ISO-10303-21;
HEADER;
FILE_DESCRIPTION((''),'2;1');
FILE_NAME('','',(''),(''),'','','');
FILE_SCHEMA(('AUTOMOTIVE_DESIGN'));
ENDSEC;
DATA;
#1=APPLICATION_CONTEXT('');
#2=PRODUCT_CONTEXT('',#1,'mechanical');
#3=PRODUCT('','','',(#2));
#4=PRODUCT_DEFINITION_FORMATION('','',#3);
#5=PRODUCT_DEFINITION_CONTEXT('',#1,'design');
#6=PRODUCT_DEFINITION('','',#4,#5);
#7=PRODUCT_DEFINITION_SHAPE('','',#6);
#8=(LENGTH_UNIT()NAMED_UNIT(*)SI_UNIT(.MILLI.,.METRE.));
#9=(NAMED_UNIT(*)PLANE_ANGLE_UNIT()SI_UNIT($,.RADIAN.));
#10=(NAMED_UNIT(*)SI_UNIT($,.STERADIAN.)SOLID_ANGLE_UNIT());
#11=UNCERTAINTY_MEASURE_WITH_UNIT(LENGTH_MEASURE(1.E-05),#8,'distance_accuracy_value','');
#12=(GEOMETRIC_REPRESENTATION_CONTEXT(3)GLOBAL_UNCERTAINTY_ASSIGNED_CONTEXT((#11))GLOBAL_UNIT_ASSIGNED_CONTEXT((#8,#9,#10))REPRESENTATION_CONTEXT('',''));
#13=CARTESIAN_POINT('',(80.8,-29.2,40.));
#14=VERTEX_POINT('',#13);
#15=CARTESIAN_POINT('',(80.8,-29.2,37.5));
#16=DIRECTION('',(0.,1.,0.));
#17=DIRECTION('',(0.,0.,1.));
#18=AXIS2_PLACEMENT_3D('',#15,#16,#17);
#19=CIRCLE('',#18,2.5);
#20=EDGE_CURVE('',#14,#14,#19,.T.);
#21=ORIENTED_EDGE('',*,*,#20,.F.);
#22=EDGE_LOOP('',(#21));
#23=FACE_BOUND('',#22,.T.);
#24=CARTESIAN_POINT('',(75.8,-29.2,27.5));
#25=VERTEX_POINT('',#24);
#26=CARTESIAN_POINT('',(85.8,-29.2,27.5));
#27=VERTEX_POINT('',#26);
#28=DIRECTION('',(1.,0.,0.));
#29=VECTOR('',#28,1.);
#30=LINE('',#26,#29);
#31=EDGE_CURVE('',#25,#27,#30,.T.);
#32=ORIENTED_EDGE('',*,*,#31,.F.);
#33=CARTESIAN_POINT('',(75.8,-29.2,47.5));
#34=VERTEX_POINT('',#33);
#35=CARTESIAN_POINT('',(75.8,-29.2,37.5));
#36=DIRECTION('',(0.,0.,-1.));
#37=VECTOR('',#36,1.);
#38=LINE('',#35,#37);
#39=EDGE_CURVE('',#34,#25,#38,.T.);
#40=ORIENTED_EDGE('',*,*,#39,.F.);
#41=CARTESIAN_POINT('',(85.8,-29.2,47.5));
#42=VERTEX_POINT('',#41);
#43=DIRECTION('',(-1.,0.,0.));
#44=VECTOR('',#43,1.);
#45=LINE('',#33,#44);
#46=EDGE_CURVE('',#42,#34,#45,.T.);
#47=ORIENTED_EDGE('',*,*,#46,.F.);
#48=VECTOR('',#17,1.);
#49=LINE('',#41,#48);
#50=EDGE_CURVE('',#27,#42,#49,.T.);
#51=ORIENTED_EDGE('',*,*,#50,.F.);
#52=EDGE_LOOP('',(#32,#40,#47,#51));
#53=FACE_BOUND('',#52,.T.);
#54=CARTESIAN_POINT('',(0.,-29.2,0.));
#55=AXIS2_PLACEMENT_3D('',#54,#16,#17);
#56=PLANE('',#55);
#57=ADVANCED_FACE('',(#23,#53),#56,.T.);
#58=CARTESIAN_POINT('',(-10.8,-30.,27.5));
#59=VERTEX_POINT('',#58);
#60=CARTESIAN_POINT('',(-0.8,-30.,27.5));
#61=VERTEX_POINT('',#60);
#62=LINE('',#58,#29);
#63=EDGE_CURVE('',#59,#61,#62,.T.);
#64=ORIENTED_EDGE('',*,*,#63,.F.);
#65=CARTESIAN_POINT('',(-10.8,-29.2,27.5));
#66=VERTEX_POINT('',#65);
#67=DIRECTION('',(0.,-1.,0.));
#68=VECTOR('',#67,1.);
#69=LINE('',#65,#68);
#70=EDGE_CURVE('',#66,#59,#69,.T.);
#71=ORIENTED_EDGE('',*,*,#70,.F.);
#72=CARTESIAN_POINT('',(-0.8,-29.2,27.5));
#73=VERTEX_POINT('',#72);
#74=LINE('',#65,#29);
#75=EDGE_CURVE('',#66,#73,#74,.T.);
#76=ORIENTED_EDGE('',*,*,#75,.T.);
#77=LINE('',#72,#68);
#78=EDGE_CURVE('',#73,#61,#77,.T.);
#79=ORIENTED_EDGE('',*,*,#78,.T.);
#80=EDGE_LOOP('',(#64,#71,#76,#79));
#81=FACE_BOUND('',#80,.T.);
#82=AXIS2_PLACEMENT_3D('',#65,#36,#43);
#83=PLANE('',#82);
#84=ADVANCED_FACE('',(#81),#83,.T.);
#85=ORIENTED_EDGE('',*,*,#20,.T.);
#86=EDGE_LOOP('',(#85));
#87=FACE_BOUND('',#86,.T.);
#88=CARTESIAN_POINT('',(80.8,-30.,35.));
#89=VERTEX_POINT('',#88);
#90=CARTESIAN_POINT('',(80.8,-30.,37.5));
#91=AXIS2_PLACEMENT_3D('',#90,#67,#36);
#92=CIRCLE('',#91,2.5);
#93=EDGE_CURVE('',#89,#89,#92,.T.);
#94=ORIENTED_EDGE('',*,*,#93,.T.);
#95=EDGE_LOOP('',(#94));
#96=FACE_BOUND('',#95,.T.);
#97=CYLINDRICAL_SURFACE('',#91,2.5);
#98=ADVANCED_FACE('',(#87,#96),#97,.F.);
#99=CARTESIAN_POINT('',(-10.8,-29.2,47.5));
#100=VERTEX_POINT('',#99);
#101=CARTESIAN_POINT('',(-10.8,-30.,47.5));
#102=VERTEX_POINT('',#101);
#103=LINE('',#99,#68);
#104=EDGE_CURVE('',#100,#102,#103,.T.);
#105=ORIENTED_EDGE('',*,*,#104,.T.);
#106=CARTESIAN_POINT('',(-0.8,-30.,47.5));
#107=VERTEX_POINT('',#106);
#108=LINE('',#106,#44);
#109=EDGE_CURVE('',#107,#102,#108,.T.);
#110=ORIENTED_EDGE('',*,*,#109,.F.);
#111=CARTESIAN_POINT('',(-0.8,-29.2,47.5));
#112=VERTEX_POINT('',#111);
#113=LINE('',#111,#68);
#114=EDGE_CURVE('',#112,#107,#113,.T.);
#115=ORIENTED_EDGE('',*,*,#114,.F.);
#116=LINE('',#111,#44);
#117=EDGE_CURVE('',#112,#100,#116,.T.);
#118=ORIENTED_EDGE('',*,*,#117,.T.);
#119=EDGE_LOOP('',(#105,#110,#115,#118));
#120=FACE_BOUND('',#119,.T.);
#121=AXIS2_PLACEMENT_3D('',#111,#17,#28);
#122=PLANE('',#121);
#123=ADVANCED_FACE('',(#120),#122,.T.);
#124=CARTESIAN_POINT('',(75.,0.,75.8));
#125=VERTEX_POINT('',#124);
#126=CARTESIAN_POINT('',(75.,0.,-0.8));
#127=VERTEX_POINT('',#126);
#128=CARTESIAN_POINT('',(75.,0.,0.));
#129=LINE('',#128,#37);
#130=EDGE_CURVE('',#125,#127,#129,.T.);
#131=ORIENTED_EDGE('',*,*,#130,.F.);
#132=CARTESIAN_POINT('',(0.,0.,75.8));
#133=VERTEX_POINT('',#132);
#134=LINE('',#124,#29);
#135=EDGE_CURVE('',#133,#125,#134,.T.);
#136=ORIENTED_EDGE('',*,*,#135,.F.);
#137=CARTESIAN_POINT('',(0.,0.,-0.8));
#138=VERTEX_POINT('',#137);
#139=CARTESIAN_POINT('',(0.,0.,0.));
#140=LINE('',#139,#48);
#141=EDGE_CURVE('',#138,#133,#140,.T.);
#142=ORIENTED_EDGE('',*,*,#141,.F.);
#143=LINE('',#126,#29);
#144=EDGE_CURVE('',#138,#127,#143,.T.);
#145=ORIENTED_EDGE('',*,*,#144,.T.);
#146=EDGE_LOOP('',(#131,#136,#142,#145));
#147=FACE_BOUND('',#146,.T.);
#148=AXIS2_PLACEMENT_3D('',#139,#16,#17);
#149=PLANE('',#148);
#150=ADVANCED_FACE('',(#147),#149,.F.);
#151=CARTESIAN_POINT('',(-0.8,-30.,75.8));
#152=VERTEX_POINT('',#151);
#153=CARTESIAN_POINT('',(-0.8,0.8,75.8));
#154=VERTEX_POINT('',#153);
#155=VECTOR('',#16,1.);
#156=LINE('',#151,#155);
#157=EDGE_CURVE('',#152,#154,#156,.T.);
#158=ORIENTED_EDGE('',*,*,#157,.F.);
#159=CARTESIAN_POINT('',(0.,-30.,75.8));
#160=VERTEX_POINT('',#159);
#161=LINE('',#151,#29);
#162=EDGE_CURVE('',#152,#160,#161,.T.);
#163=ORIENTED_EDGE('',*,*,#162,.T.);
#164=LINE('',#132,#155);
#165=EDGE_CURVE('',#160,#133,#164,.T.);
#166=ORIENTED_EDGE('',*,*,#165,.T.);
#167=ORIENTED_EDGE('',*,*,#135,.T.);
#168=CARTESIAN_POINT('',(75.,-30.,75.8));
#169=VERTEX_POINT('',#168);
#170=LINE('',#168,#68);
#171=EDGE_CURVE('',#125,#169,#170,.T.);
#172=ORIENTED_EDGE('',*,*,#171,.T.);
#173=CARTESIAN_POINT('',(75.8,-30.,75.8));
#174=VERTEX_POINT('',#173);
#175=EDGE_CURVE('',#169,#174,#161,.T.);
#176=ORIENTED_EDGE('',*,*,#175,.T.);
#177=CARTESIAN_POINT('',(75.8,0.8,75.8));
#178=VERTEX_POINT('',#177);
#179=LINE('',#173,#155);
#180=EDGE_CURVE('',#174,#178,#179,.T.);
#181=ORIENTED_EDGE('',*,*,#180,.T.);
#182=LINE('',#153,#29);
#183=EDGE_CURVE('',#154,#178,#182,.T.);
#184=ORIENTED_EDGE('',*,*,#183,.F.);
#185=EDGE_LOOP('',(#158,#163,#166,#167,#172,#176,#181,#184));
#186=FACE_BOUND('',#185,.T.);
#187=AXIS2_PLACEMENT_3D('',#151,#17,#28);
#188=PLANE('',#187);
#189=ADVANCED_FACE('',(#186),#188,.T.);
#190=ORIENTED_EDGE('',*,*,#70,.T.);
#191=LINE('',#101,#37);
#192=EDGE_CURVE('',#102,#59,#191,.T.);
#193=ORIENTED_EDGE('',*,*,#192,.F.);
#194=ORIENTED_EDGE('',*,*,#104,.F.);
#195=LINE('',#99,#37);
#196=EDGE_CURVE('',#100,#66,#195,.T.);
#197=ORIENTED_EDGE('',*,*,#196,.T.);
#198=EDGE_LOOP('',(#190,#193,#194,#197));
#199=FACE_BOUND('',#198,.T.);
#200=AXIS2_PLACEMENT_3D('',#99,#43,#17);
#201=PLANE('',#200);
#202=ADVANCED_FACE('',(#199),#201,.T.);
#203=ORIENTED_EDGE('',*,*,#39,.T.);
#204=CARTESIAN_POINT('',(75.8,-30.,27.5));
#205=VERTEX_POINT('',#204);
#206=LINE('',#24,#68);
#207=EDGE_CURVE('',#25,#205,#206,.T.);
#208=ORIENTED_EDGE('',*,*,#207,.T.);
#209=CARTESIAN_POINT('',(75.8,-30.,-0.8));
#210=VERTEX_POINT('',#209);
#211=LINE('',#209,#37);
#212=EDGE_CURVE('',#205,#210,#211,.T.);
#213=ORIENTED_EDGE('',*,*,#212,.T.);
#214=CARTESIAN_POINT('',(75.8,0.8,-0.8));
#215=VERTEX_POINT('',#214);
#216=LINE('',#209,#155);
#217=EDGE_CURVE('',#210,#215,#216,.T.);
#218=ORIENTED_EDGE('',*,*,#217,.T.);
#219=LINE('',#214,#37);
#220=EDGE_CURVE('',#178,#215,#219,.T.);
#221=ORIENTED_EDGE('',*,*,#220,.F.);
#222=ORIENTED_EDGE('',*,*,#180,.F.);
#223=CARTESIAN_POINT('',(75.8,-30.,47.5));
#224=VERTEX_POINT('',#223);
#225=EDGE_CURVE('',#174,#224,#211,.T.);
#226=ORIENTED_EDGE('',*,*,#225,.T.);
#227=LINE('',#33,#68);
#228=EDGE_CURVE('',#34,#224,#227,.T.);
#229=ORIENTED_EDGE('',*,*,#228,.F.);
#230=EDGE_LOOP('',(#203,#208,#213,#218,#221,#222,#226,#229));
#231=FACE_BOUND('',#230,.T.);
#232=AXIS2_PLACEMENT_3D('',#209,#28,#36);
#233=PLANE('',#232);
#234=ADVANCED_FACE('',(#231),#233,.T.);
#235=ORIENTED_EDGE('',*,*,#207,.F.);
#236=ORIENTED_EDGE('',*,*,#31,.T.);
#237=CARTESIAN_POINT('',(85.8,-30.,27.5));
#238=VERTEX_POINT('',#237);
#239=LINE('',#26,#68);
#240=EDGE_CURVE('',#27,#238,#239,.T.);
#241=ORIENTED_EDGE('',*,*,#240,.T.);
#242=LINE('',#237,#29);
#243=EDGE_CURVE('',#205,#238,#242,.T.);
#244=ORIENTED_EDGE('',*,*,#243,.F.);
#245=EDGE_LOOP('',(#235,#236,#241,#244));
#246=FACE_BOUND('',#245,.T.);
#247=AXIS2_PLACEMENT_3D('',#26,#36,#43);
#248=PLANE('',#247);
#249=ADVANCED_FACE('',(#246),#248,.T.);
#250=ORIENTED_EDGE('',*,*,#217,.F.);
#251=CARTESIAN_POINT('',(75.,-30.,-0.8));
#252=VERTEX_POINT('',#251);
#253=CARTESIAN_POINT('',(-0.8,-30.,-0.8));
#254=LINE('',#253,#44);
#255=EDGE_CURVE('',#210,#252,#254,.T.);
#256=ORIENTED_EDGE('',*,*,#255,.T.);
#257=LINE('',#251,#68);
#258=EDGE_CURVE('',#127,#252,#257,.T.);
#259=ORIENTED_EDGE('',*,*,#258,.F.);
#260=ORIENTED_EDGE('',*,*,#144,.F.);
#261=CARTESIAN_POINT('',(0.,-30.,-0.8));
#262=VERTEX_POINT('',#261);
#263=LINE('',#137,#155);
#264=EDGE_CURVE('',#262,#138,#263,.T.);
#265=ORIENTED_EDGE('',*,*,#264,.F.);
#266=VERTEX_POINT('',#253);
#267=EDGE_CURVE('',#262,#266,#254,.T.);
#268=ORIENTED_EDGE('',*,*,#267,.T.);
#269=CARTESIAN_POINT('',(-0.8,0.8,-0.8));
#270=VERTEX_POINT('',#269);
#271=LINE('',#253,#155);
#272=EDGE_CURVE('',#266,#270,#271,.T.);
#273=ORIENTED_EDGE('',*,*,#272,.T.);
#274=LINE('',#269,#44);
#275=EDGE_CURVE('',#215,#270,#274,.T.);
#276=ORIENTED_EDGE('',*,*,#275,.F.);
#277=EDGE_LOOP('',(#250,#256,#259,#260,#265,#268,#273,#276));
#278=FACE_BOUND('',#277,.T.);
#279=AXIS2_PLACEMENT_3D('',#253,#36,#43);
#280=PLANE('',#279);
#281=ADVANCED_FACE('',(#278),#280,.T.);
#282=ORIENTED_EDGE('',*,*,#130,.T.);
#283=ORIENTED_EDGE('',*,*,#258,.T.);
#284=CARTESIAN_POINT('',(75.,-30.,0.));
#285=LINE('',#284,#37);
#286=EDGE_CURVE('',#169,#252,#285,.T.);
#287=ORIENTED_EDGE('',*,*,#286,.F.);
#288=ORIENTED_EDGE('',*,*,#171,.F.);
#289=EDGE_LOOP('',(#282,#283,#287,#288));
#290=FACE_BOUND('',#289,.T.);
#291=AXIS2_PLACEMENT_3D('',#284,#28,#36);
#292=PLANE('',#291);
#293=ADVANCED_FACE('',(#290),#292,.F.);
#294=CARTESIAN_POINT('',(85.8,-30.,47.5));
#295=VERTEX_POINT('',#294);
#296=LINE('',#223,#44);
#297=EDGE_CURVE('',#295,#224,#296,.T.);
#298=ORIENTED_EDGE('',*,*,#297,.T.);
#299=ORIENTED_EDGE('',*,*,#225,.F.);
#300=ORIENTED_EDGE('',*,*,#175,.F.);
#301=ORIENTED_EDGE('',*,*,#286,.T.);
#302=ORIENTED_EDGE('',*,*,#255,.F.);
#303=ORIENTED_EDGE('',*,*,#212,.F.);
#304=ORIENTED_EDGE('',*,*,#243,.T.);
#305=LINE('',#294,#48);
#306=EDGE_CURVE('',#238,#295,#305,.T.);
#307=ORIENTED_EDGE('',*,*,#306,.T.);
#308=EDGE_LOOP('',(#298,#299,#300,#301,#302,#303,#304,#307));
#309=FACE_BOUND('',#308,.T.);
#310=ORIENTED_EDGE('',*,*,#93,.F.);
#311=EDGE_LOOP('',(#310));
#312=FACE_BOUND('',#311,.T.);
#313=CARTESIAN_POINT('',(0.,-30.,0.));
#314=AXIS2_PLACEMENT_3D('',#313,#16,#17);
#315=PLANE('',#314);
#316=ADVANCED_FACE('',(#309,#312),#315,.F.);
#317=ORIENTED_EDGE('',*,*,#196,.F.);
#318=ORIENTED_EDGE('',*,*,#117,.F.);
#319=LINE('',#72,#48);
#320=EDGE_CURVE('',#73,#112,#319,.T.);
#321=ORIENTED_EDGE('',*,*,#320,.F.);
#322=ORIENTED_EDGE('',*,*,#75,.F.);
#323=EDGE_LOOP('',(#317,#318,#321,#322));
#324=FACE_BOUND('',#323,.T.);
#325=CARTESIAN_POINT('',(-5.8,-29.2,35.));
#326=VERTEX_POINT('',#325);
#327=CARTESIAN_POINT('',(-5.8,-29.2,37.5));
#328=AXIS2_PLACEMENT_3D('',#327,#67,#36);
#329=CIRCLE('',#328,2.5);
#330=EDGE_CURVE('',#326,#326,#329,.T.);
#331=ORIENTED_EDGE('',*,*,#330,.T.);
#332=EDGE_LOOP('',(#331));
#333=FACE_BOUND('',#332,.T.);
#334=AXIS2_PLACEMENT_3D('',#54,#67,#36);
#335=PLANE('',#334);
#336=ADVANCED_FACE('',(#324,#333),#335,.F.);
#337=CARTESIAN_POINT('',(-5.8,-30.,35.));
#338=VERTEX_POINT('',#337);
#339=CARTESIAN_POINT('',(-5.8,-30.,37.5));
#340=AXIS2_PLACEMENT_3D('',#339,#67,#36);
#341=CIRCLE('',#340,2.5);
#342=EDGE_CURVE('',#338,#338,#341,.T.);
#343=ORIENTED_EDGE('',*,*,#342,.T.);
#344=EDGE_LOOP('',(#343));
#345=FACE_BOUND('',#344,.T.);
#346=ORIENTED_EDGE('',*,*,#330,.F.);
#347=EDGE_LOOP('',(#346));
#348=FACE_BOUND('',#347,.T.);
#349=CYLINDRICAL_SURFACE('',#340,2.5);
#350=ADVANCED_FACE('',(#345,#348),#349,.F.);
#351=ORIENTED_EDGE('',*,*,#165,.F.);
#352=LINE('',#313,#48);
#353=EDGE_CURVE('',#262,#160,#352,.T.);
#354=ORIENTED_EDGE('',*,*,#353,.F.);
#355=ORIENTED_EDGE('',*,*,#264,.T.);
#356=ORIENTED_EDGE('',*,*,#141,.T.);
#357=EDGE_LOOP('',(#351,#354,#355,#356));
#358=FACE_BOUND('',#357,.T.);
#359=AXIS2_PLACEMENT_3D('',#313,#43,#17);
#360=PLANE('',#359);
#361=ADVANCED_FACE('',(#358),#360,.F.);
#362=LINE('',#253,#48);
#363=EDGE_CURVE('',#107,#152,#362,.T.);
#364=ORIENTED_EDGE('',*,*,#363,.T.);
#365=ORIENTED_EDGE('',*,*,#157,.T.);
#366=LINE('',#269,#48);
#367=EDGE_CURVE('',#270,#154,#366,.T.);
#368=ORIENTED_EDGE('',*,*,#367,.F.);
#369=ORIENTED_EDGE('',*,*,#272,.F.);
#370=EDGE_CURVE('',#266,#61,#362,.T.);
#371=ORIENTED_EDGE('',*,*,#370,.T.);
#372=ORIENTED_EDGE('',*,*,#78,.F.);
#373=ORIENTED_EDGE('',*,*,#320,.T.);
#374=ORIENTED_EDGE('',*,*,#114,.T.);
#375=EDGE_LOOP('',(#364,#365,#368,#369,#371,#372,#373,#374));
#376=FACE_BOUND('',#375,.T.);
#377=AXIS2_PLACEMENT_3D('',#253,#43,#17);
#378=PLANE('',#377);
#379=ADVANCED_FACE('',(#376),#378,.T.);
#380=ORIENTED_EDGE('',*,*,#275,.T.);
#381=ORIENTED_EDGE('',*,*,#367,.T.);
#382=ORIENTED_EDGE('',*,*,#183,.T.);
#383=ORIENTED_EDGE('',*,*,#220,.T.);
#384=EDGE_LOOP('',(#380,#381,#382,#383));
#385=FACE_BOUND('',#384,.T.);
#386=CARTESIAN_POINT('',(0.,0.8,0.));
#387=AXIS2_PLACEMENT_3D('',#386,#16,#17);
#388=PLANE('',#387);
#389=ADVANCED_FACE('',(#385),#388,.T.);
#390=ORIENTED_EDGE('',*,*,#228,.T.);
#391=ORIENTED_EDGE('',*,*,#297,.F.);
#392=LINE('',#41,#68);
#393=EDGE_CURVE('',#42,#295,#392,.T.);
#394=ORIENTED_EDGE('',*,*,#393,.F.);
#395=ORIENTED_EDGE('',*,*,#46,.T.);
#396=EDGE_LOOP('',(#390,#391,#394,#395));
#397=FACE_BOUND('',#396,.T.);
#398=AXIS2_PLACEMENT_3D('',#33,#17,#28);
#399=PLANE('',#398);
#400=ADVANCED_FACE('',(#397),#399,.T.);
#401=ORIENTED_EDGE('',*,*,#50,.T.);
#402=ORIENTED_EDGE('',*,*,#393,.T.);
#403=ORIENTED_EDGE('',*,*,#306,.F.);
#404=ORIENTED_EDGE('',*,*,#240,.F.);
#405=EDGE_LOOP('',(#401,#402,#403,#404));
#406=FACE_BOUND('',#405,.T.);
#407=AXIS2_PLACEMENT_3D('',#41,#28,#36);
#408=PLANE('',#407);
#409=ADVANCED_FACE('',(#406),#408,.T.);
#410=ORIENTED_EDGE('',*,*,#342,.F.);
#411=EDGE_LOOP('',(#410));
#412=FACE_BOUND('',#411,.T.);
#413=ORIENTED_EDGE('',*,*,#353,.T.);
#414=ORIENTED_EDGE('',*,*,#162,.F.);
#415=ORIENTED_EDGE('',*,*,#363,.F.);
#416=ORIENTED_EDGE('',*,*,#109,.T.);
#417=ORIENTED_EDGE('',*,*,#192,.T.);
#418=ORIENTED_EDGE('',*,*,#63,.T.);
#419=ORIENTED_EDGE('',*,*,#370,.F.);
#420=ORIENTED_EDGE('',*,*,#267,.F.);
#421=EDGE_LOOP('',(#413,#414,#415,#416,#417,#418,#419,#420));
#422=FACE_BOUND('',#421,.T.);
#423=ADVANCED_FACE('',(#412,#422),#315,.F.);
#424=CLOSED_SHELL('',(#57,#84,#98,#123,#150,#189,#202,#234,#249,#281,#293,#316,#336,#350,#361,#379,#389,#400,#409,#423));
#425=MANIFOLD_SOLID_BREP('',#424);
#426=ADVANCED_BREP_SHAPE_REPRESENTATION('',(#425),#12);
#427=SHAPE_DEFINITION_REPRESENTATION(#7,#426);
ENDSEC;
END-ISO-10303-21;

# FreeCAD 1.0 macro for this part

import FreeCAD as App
import Part
import Sketcher


def add_polygon(sketch, points):
    """Adds a closed chain of lines whose ends are joined by coincident constraints."""
    first, n = sketch.GeometryCount, len(points)
    for a, b in zip(points, points[1:] + points[:1]):
        sketch.addGeometry(Part.LineSegment(App.Vector(*a, 0), App.Vector(*b, 0)), False)
    for i in range(n):
        sketch.addConstraint(Sketcher.Constraint("Coincident", first + i, 2, first + (i + 1) % n, 1))

doc = App.newDocument("Part")
body = doc.addObject("PartDesign::Body", "Body")

sketch1 = body.newObject("Sketcher::SketchObject", "Sketch")
sketch1.AttachmentSupport = (doc.getObject("XZ_Plane"), [""])
sketch1.MapMode = "FlatFace"
add_polygon(sketch1, [(0, 0), (0, 75), (75, 75), (75, 0)])
sketch1.addConstraint(Sketcher.Constraint("Vertical", 0))
sketch1.addConstraint(Sketcher.Constraint("Horizontal", 1))
sketch1.addConstraint(Sketcher.Constraint("Vertical", 2))
sketch1.addConstraint(Sketcher.Constraint("Horizontal", 3))
sketch1.addConstraint(Sketcher.Constraint("Coincident", 3, 2, -1, 1))
sketch1.addConstraint(Sketcher.Constraint("Equal", 3, 0))
sketch1.addConstraint(Sketcher.Constraint("DistanceX", 1, 1, 1, 2, 75.0))
pad1 = body.newObject("PartDesign::Pad", "Pad")
pad1.Profile = sketch1
pad1.Length = 0.8
pad1.Reversed = True

sketch2 = body.newObject("Sketcher::SketchObject", "Sketch001")
sketch2.AttachmentSupport = (doc.getObject("XZ_Plane"), [""])
sketch2.MapMode = "FlatFace"
sketch2.AttachmentOffset = App.Placement(App.Vector(0, 0, -0.8), App.Rotation())
add_polygon(sketch2, [(-0.8, -0.8), (-0.8, 75.8), (75.8, 75.8), (75.8, -0.8)])
add_polygon(sketch2, [(75, 75), (0, 75), (0, 0), (75, 0)])
sketch2.addConstraint(Sketcher.Constraint("Vertical", 0))
sketch2.addConstraint(Sketcher.Constraint("Horizontal", 1))
sketch2.addConstraint(Sketcher.Constraint("Vertical", 2))
sketch2.addConstraint(Sketcher.Constraint("Horizontal", 3))
sketch2.addConstraint(Sketcher.Constraint("Horizontal", 4))
sketch2.addConstraint(Sketcher.Constraint("Vertical", 5))
sketch2.addConstraint(Sketcher.Constraint("Horizontal", 6))
sketch2.addConstraint(Sketcher.Constraint("Vertical", 7))
sketch2.addConstraint(Sketcher.Constraint("Coincident", 5, 2, -1, 1))
sketch2.addConstraint(Sketcher.Constraint("Equal", 3, 0))
sketch2.addConstraint(Sketcher.Constraint("Equal", 6, 5))
sketch2.addConstraint(Sketcher.Constraint("DistanceX", 4, 2, 4, 1, 75.0))
sketch2.addConstraint(Sketcher.Constraint("DistanceX", 1, 1, 1, 2, 76.6))
sketch2.addConstraint(Sketcher.Constraint("DistanceX", 0, 2, -1, 1, 0.8))
sketch2.addConstraint(Sketcher.Constraint("DistanceY", -1, 1, 0, 2, 75.8))
pad2 = body.newObject("PartDesign::Pad", "Pad001")
pad2.Profile = sketch2
pad2.Length = 30.8

sketch3 = body.newObject("Sketcher::SketchObject", "Sketch002")
sketch3.AttachmentSupport = (doc.getObject("XZ_Plane"), [""])
sketch3.MapMode = "FlatFace"
sketch3.AttachmentOffset = App.Placement(App.Vector(0, 0, 30), App.Rotation())
add_polygon(sketch3, [(-0.8, 47.5), (-10.8, 47.5), (-10.8, 27.5), (-0.8, 27.5)])
add_polygon(sketch3, [(75.8, 47.5), (75.8, 27.5), (85.8, 27.5), (85.8, 47.5)])
sketch3.addConstraint(Sketcher.Constraint("Horizontal", 0))
sketch3.addConstraint(Sketcher.Constraint("Vertical", 1))
sketch3.addConstraint(Sketcher.Constraint("Horizontal", 2))
sketch3.addConstraint(Sketcher.Constraint("Vertical", 3))
sketch3.addConstraint(Sketcher.Constraint("Vertical", 4))
sketch3.addConstraint(Sketcher.Constraint("Horizontal", 5))
sketch3.addConstraint(Sketcher.Constraint("Vertical", 6))
sketch3.addConstraint(Sketcher.Constraint("Horizontal", 7))
sketch3.addConstraint(Sketcher.Constraint("Horizontal", 2, 2, 4, 2))
sketch3.addConstraint(Sketcher.Constraint("Horizontal", 3, 2, 6, 2))
sketch3.addConstraint(Sketcher.Constraint("Equal", 2, 5))
sketch3.addConstraint(Sketcher.Constraint("DistanceX", 0, 2, 0, 1, 10.0))
sketch3.addConstraint(Sketcher.Constraint("DistanceY", 1, 2, 1, 1, 20.0))
sketch3.addConstraint(Sketcher.Constraint("DistanceX", 0, 2, -1, 1, 10.8))
sketch3.addConstraint(Sketcher.Constraint("DistanceY", -1, 1, 0, 2, 47.5))
sketch3.addConstraint(Sketcher.Constraint("DistanceX", -1, 1, 4, 2, 75.8))
pad3 = body.newObject("PartDesign::Pad", "Pad002")
pad3.Profile = sketch3
pad3.Length = 0.8
pad3.Reversed = True

sketch4 = body.newObject("Sketcher::SketchObject", "Sketch003")
sketch4.AttachmentSupport = (doc.getObject("XZ_Plane"), [""])
sketch4.MapMode = "FlatFace"
sketch4.AttachmentOffset = App.Placement(App.Vector(0, 0, 30), App.Rotation())
sketch4.addGeometry(Part.Circle(App.Vector(-5.8, 37.5, 0), App.Vector(0, 0, 1), 2.5), False)
sketch4.addGeometry(Part.Circle(App.Vector(80.8, 37.5, 0), App.Vector(0, 0, 1), 2.5), False)
sketch4.addConstraint(Sketcher.Constraint("Equal", 0, 1))
sketch4.addConstraint(Sketcher.Constraint("Horizontal", 0, 3, 1, 3))
sketch4.addConstraint(Sketcher.Constraint("Diameter", 0, 5.0))
sketch4.addConstraint(Sketcher.Constraint("DistanceX", 0, 3, -1, 1, 5.8))
sketch4.addConstraint(Sketcher.Constraint("DistanceY", -1, 1, 0, 3, 37.5))
sketch4.addConstraint(Sketcher.Constraint("DistanceX", -1, 1, 1, 3, 80.8))
doc.recompute()
hole = body.newObject("PartDesign::Hole", "Hole")
hole.Profile = sketch4
hole.ThreadType = "None"
hole.Diameter = 5
hole.DepthType = "ThroughAll"

sketch5 = body.newObject("Sketcher::SketchObject", "Sketch004")
sketch5.AttachmentSupport = (doc.getObject("XY_Plane"), [""])
sketch5.MapMode = "FlatFace"
sketch5.AttachmentOffset = App.Placement(App.Vector(0, 0, -0.8), App.Rotation())
add_polygon(sketch5, [(75, 0), (75, -30), (0, -30), (0, 0)])
sketch5.addConstraint(Sketcher.Constraint("Vertical", 0))
sketch5.addConstraint(Sketcher.Constraint("Horizontal", 1))
sketch5.addConstraint(Sketcher.Constraint("Vertical", 2))
sketch5.addConstraint(Sketcher.Constraint("Horizontal", 3))
sketch5.addConstraint(Sketcher.Constraint("Coincident", 2, 2, -1, 1))
sketch5.addConstraint(Sketcher.Constraint("DistanceX", 1, 2, 1, 1, 75.0))
sketch5.addConstraint(Sketcher.Constraint("DistanceY", 0, 2, 0, 1, 30.0))
pocket1 = body.newObject("PartDesign::Pocket", "Pocket")
pocket1.Profile = sketch5
pocket1.Type = "ThroughAll"
pocket1.Reversed = True

doc.recompute()
